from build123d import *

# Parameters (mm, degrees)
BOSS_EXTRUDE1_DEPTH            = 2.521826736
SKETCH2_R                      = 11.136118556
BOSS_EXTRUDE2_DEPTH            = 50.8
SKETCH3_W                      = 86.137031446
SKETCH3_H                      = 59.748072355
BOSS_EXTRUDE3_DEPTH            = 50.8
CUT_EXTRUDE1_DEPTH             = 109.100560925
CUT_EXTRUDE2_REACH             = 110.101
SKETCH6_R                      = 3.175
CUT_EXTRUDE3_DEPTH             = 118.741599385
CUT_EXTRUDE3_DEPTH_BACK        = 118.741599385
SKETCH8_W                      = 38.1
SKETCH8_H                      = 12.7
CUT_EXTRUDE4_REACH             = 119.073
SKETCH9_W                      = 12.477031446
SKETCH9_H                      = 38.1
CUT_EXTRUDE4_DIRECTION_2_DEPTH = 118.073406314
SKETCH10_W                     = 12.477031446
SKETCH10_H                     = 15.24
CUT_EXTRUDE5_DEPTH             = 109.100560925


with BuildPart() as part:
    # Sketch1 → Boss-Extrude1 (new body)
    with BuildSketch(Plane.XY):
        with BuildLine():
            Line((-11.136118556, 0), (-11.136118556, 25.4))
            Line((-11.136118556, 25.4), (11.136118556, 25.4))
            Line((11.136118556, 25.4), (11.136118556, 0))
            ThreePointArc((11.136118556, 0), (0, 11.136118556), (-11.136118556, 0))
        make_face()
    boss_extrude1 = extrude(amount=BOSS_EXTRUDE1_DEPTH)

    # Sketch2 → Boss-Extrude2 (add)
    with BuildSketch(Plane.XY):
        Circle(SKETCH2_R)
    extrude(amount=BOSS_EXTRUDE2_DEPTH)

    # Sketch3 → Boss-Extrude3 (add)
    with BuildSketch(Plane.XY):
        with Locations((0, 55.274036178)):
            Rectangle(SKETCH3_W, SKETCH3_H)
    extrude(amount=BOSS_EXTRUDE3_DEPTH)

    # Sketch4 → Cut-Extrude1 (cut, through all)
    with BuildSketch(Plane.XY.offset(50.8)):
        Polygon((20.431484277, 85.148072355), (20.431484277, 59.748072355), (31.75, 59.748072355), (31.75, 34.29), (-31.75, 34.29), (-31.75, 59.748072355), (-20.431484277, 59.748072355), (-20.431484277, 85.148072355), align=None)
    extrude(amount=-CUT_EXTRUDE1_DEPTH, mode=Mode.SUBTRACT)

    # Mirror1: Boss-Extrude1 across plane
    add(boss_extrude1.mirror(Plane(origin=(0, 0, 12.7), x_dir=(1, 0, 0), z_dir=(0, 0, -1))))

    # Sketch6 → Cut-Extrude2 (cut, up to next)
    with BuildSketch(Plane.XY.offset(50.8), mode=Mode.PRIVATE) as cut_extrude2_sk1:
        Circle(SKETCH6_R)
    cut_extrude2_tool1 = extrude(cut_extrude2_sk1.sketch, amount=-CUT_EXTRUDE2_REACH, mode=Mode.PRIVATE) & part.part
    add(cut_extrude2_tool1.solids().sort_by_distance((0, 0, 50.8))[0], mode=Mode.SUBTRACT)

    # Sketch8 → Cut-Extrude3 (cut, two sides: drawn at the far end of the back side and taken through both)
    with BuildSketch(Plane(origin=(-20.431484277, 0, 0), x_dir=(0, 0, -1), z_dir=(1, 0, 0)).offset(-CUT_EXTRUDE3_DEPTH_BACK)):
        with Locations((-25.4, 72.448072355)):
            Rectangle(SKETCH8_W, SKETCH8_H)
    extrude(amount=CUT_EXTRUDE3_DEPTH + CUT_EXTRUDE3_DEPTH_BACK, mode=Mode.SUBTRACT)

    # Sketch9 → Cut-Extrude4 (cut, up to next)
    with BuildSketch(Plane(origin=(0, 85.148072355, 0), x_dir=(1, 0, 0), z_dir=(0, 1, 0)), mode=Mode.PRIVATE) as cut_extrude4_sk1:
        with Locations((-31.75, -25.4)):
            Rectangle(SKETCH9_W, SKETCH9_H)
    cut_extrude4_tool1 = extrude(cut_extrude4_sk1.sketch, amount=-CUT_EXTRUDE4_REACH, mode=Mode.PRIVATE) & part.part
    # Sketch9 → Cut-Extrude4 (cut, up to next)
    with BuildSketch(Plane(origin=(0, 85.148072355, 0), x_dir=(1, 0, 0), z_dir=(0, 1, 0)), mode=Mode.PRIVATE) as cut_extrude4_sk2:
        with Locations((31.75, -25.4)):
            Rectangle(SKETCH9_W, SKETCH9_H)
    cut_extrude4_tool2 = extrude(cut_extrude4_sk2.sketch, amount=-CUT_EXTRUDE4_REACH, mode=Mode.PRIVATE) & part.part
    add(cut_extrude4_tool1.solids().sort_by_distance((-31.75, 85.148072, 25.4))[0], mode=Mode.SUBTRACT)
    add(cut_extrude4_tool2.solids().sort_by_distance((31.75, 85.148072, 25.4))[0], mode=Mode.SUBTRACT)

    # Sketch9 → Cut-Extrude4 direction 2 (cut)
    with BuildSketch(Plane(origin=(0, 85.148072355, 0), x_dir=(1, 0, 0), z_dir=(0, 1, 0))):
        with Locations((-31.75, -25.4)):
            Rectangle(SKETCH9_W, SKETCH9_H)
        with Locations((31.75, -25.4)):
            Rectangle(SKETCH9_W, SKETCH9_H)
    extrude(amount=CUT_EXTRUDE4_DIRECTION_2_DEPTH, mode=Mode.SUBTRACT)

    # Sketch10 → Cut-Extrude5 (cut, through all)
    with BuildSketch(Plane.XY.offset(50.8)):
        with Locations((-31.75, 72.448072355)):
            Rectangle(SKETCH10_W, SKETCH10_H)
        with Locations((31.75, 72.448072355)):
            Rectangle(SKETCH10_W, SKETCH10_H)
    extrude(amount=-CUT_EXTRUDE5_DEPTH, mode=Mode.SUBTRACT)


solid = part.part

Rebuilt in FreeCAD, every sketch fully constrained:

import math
import FreeCAD as App
import Part
import Sketcher

V = App.Vector
Q = App.Units.Quantity


def add_polygon(sketch, points):
    """Adds a closed chain of lines whose ends are joined by coincident constraints."""
    first, n = sketch.GeometryCount, len(points)
    for a, b in zip(points, points[1:] + points[:1]):
        sketch.addGeometry(Part.LineSegment(App.Vector(*a, 0), App.Vector(*b, 0)), False)
    for i in range(n):
        sketch.addConstraint(Sketcher.Constraint("Coincident", first + i, 2, first + (i + 1) % n, 1))

doc = App.newDocument("Part")
body = doc.addObject("PartDesign::Body", "Body")

sketch1 = body.newObject("Sketcher::SketchObject", "Sketch")
sketch1.AttachmentSupport = (doc.getObject("XY_Plane"), [""])
sketch1.MapMode = "FlatFace"
sketch1.addGeometry(Part.LineSegment(V(-11, 25, 0), V(-11, 0, 0)), False)
sketch1.addGeometry(Part.ArcOfCircle(Part.Circle(V(0, 0, 0), V(0, 0, 1), 11), math.radians(0), math.radians(180)), False)
sketch1.addGeometry(Part.LineSegment(V(11, 0, 0), V(11, 25, 0)), False)
sketch1.addGeometry(Part.LineSegment(V(11, 25, 0), V(-11, 25, 0)), False)
sketch1.addConstraint(Sketcher.Constraint("Tangent", 0, 2, 1, 2))
sketch1.addConstraint(Sketcher.Constraint("Tangent", 1, 1, 2, 1))
sketch1.addConstraint(Sketcher.Constraint("Coincident", 2, 2, 3, 1))
sketch1.addConstraint(Sketcher.Constraint("Coincident", 3, 2, 0, 1))
sketch1.addConstraint(Sketcher.Constraint("Vertical", 0))
sketch1.addConstraint(Sketcher.Constraint("Vertical", 2))
sketch1.addConstraint(Sketcher.Constraint("Horizontal", 3))
sketch1.addConstraint(Sketcher.Constraint("Coincident", 1, 3, -1, 1))
sketch1.addConstraint(Sketcher.Constraint("DistanceY", 0, 2, 0, 1, Q("1 in")))
sketch1.addConstraint(Sketcher.Constraint("Radius", 1, Q("11.136119 mm")))
pad1 = body.newObject("PartDesign::Pad", "Pad")
pad1.Profile = sketch1
pad1.Length = 2.521827

sketch2 = body.newObject("Sketcher::SketchObject", "Sketch001")
sketch2.AttachmentSupport = (doc.getObject("XY_Plane"), [""])
sketch2.MapMode = "FlatFace"
sketch2.addGeometry(Part.Circle(V(0, 0, 0), V(0, 0, 1), 11), False)
sketch2.addConstraint(Sketcher.Constraint("Coincident", 0, 3, -1, 1))
sketch2.addConstraint(Sketcher.Constraint("Diameter", 0, Q("22.272237 mm")))
pad2 = body.newObject("PartDesign::Pad", "Pad001")
pad2.Profile = sketch2
pad2.Length = Q("2 in")

sketch3 = body.newObject("Sketcher::SketchObject", "Sketch002")
sketch3.AttachmentSupport = (doc.getObject("XY_Plane"), [""])
sketch3.MapMode = "FlatFace"
add_polygon(sketch3, [(-43, 85), (-43, 25), (43, 25), (43, 85)])
sketch3.addConstraint(Sketcher.Constraint("Vertical", 0))
sketch3.addConstraint(Sketcher.Constraint("Horizontal", 1))
sketch3.addConstraint(Sketcher.Constraint("Vertical", 2))
sketch3.addConstraint(Sketcher.Constraint("Horizontal", 3))
sketch3.addConstraint(Sketcher.Constraint("DistanceY", -1, 1, 0, 2, Q("1 in")))
sketch3.addConstraint(Sketcher.Constraint("DistanceX", 1, 1, 1, 2, Q("86.137031 mm")))
sketch3.addConstraint(Sketcher.Constraint("DistanceY", 0, 2, 0, 1, Q("59.748072 mm")))
sketch3.addConstraint(Sketcher.Constraint("DistanceX", 0, 2, -1, 1, Q("43.068516 mm")))
pad3 = body.newObject("PartDesign::Pad", "Pad002")
pad3.Profile = sketch3
pad3.Length = Q("2 in")

sketch4 = body.newObject("Sketcher::SketchObject", "Sketch003")
sketch4.AttachmentSupport = (doc.getObject("XY_Plane"), [""])
sketch4.MapMode = "FlatFace"
sketch4.AttachmentOffset = App.Placement(V(0, 0, 2 * 25.4), App.Rotation())
add_polygon(sketch4, [(20, 60), (20, 85), (-20, 85), (-20, 60), (-32, 60), (-32, 34), (32, 34), (32, 60)])
sketch4.addConstraint(Sketcher.Constraint("Vertical", 0))
sketch4.addConstraint(Sketcher.Constraint("Horizontal", 1))
sketch4.addConstraint(Sketcher.Constraint("Vertical", 2))
sketch4.addConstraint(Sketcher.Constraint("Horizontal", 3))
sketch4.addConstraint(Sketcher.Constraint("Vertical", 4))
sketch4.addConstraint(Sketcher.Constraint("Horizontal", 5))
sketch4.addConstraint(Sketcher.Constraint("Vertical", 6))
sketch4.addConstraint(Sketcher.Constraint("Horizontal", 7))
sketch4.addConstraint(Sketcher.Constraint("Symmetric", 3, 2, 6, 2, -2))
sketch4.addConstraint(Sketcher.Constraint("Equal", 3, 7))
sketch4.addConstraint(Sketcher.Constraint("DistanceY", 0, 1, 0, 2, Q("1 in")))
sketch4.addConstraint(Sketcher.Constraint("DistanceX", 5, 1, 5, 2, Q("2.5 in")))
sketch4.addConstraint(Sketcher.Constraint("DistanceY", -1, 1, 4, 2, Q("1.35 in")))
sketch4.addConstraint(Sketcher.Constraint("DistanceX", 1, 2, 1, 1, Q("40.862969 mm")))
sketch4.addConstraint(Sketcher.Constraint("DistanceY", 4, 2, 4, 1, Q("25.458072 mm")))
pocket1 = body.newObject("PartDesign::Pocket", "Pocket")
pocket1.Profile = sketch4
pocket1.Type = "ThroughAll"
doc.recompute()

datumplane = body.newObject("PartDesign::Plane", "DatumPlane")
datumplane.AttachmentSupport = (doc.getObject("XY_Plane"), [""])
datumplane.MapMode = "FlatFace"
datumplane.AttachmentOffset = App.Placement(V(0, 0, 0.5 * 25.4), App.Rotation())
mirrored = body.newObject("PartDesign::Mirrored", "Mirrored")
mirrored.Originals = [pad1]
mirrored.MirrorPlane = (datumplane, [""])
body.Tip = mirrored

sketch5 = body.newObject("Sketcher::SketchObject", "Sketch004")
sketch5.AttachmentSupport = (doc.getObject("XY_Plane"), [""])
sketch5.MapMode = "FlatFace"
sketch5.AttachmentOffset = App.Placement(V(0, 0, 2 * 25.4), App.Rotation())
sketch5.addGeometry(Part.Circle(V(0, 0, 0), V(0, 0, 1), 3.2), False)
sketch5.addConstraint(Sketcher.Constraint("Coincident", 0, 3, -1, 1))
sketch5.addConstraint(Sketcher.Constraint("Diameter", 0, Q("0.25 in")))
pocket2 = body.newObject("PartDesign::Pocket", "Pocket001")
pocket2.Profile = sketch5
pocket2.Type = "UpToFirst"

sketch6 = body.newObject("Sketcher::SketchObject", "Sketch005")
sketch6.AttachmentSupport = (doc.getObject("YZ_Plane"), [""])
sketch6.MapMode = "FlatFace"
sketch6.AttachmentOffset = App.Placement(V(0, 0, -20.431484), App.Rotation())
add_polygon(sketch6, [(79, 44), (66, 44), (66, 6), (79, 6)])
sketch6.addConstraint(Sketcher.Constraint("Horizontal", 0))
sketch6.addConstraint(Sketcher.Constraint("Vertical", 1))
sketch6.addConstraint(Sketcher.Constraint("Horizontal", 2))
sketch6.addConstraint(Sketcher.Constraint("Vertical", 3))
sketch6.addConstraint(Sketcher.Constraint("DistanceX", 0, 2, 0, 1, Q("0.5 in")))
sketch6.addConstraint(Sketcher.Constraint("DistanceY", 1, 2, 1, 1, Q("1.5 in")))
sketch6.addConstraint(Sketcher.Constraint("DistanceY", -1, 1, 0, 2, Q("1.75 in")))
sketch6.addConstraint(Sketcher.Constraint("DistanceX", -1, 1, 0, 2, Q("66.098072 mm")))
pocket3 = body.newObject("PartDesign::Pocket", "Pocket002")
pocket3.Profile = sketch6
pocket3.Type = "ThroughAll"
pocket3.Midplane = True

sketch7 = body.newObject("Sketcher::SketchObject", "Sketch006")
sketch7.AttachmentSupport = (doc.getObject("XZ_Plane"), [""])
sketch7.MapMode = "FlatFace"
sketch7.AttachmentOffset = App.Placement(V(0, 0, -85.148072), App.Rotation())
add_polygon(sketch7, [(-38, 6), (-38, 44), (-26, 44), (-26, 6)])
sketch7.addConstraint(Sketcher.Constraint("Vertical", 0))
sketch7.addConstraint(Sketcher.Constraint("Horizontal", 1))
sketch7.addConstraint(Sketcher.Constraint("Vertical", 2))
sketch7.addConstraint(Sketcher.Constraint("Horizontal", 3))
sketch7.addConstraint(Sketcher.Constraint("DistanceY", 0, 1, 0, 2, Q("1.5 in")))
sketch7.addConstraint(Sketcher.Constraint("DistanceY", -1, 1, 0, 2, Q("1.75 in")))
sketch7.addConstraint(Sketcher.Constraint("DistanceX", 1, 1, 1, 2, Q("12.477031 mm")))
sketch7.addConstraint(Sketcher.Constraint("DistanceX", 0, 2, -1, 1, Q("37.988516 mm")))
pocket4 = body.newObject("PartDesign::Pocket", "Pocket003")
pocket4.Profile = sketch7
pocket4.Type = "UpToFirst"
pocket4.Reversed = True

sketch8 = body.newObject("Sketcher::SketchObject", "Sketch007")
sketch8.AttachmentSupport = (doc.getObject("XZ_Plane"), [""])
sketch8.MapMode = "FlatFace"
sketch8.AttachmentOffset = App.Placement(V(0, 0, -85.148072), App.Rotation())
add_polygon(sketch8, [(26, 6), (26, 44), (38, 44), (38, 6)])
sketch8.addConstraint(Sketcher.Constraint("Vertical", 0))
sketch8.addConstraint(Sketcher.Constraint("Horizontal", 1))
sketch8.addConstraint(Sketcher.Constraint("Vertical", 2))
sketch8.addConstraint(Sketcher.Constraint("Horizontal", 3))
sketch8.addConstraint(Sketcher.Constraint("DistanceY", 0, 1, 0, 2, Q("1.5 in")))
sketch8.addConstraint(Sketcher.Constraint("DistanceY", -1, 1, 0, 2, Q("1.75 in")))
sketch8.addConstraint(Sketcher.Constraint("DistanceX", 1, 1, 1, 2, Q("12.477031 mm")))
sketch8.addConstraint(Sketcher.Constraint("DistanceX", -1, 1, 0, 2, Q("25.511484 mm")))
pocket5 = body.newObject("PartDesign::Pocket", "Pocket004")
pocket5.Profile = sketch8
pocket5.Type = "UpToFirst"
pocket5.Reversed = True

sketch9 = body.newObject("Sketcher::SketchObject", "Sketch008")
sketch9.AttachmentSupport = (doc.getObject("XZ_Plane"), [""])
sketch9.MapMode = "FlatFace"
sketch9.AttachmentOffset = App.Placement(V(0, 0, -85.148072), App.Rotation())
add_polygon(sketch9, [(-38, 6), (-38, 44), (-26, 44), (-26, 6)])
add_polygon(sketch9, [(26, 6), (26, 44), (38, 44), (38, 6)])
sketch9.addConstraint(Sketcher.Constraint("Vertical", 0))
sketch9.addConstraint(Sketcher.Constraint("Horizontal", 1))
sketch9.addConstraint(Sketcher.Constraint("Vertical", 2))
sketch9.addConstraint(Sketcher.Constraint("Horizontal", 3))
sketch9.addConstraint(Sketcher.Constraint("Vertical", 4))
sketch9.addConstraint(Sketcher.Constraint("Horizontal", 5))
sketch9.addConstraint(Sketcher.Constraint("Vertical", 6))
sketch9.addConstraint(Sketcher.Constraint("Horizontal", 7))
sketch9.addConstraint(Sketcher.Constraint("Symmetric", 1, 2, 4, 2, -2))
sketch9.addConstraint(Sketcher.Constraint("Symmetric", 3, 2, 6, 2, -2))
sketch9.addConstraint(Sketcher.Constraint("DistanceY", 0, 1, 0, 2, Q("1.5 in")))
sketch9.addConstraint(Sketcher.Constraint("DistanceX", 0, 2, 4, 2, Q("2.5 in")))
sketch9.addConstraint(Sketcher.Constraint("DistanceY", -1, 1, 0, 2, Q("1.75 in")))
sketch9.addConstraint(Sketcher.Constraint("DistanceX", 1, 1, 1, 2, Q("12.477031 mm")))
pocket6 = body.newObject("PartDesign::Pocket", "Pocket005")
pocket6.Profile = sketch9
pocket6.Length = 118.073406

sketch10 = body.newObject("Sketcher::SketchObject", "Sketch009")
sketch10.AttachmentSupport = (doc.getObject("XY_Plane"), [""])
sketch10.MapMode = "FlatFace"
sketch10.AttachmentOffset = App.Placement(V(0, 0, 2 * 25.4), App.Rotation())
add_polygon(sketch10, [(-38, 80), (-38, 65), (-26, 65), (-26, 80)])
add_polygon(sketch10, [(26, 80), (26, 65), (38, 65), (38, 80)])
sketch10.addConstraint(Sketcher.Constraint("Vertical", 0))
sketch10.addConstraint(Sketcher.Constraint("Horizontal", 1))
sketch10.addConstraint(Sketcher.Constraint("Vertical", 2))
sketch10.addConstraint(Sketcher.Constraint("Horizontal", 3))
sketch10.addConstraint(Sketcher.Constraint("Vertical", 4))
sketch10.addConstraint(Sketcher.Constraint("Horizontal", 5))
sketch10.addConstraint(Sketcher.Constraint("Vertical", 6))
sketch10.addConstraint(Sketcher.Constraint("Horizontal", 7))
sketch10.addConstraint(Sketcher.Constraint("Symmetric", 1, 2, 4, 2, -2))
sketch10.addConstraint(Sketcher.Constraint("Symmetric", 3, 2, 6, 2, -2))
sketch10.addConstraint(Sketcher.Constraint("DistanceY", 0, 2, 0, 1, Q("0.6 in")))
sketch10.addConstraint(Sketcher.Constraint("DistanceX", 0, 2, 4, 2, Q("2.5 in")))
sketch10.addConstraint(Sketcher.Constraint("DistanceX", 1, 1, 1, 2, Q("12.477031 mm")))
sketch10.addConstraint(Sketcher.Constraint("DistanceY", -1, 1, 0, 2, Q("64.828072 mm")))
pocket7 = body.newObject("PartDesign::Pocket", "Pocket006")
pocket7.Profile = sketch10
pocket7.Type = "ThroughAll"

doc.recompute()
